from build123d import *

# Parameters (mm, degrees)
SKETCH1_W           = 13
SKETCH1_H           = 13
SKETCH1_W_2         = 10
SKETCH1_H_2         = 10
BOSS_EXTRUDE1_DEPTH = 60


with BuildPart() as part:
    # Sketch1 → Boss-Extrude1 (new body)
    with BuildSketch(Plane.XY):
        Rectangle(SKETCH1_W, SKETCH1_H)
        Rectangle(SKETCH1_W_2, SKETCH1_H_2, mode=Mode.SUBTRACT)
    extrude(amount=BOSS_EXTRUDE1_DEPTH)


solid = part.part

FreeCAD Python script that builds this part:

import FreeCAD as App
import Part
import Sketcher
from FreeCAD import Vector
Q = App.Units.Quantity


def add_polygon(sketch, points):
    """Adds a closed chain of lines whose ends are joined by coincident constraints."""
    first, n = sketch.GeometryCount, len(points)
    for a, b in zip(points, points[1:] + points[:1]):
        sketch.addGeometry(Part.LineSegment(App.Vector(*a, 0), App.Vector(*b, 0)), False)
    for i in range(n):
        sketch.addConstraint(Sketcher.Constraint("Coincident", first + i, 2, first + (i + 1) % n, 1))

doc = App.newDocument("Part")
params = doc.addObject("Spreadsheet::Sheet", "Params")
for row, (alias, value) in enumerate([
    ("sketch1_width", "13 mm"),
    ("sketch1_width2", "10 mm"),
    ("pad1_length", "60 mm"),
], start=1):
    params.set(f"A{row}", alias)
    params.set(f"B{row}", "=" + value)
    params.setAlias(f"B{row}", alias)

body = doc.addObject("PartDesign::Body", "Body")

# Sketch on XY plane
sketch1 = body.newObject("Sketcher::SketchObject", "Sketch")
sketch1.AttachmentSupport = (doc.getObject("XY_Plane"), [""])
sketch1.MapMode = "FlatFace"
add_polygon(sketch1, [(-6, 6), (-6, -6), (6, -6), (6, 6)])  # lines 0-3
add_polygon(sketch1, [(5, -5), (-5, -5), (-5, 5), (5, 5)])  # lines 4-7
sketch1.addConstraint([
    Sketcher.Constraint("Vertical", 0),
    Sketcher.Constraint("Horizontal", 1),
    Sketcher.Constraint("Vertical", 2),
    Sketcher.Constraint("Horizontal", 3),
    Sketcher.Constraint("Horizontal", 4),
    Sketcher.Constraint("Vertical", 5),
    Sketcher.Constraint("Horizontal", 6),
    Sketcher.Constraint("Vertical", 7),
    Sketcher.Constraint("Symmetric", 0, 2, 2, 2, -1, 1),
    Sketcher.Constraint("Symmetric", 4, 2, 6, 2, -1, 1),
    Sketcher.Constraint("Equal", 3, 0),
    Sketcher.Constraint("Equal", 6, 5),
    Sketcher.Constraint("DistanceX", 1, 1, 1, 2, Q("13 mm")),
    Sketcher.Constraint("DistanceX", 4, 2, 4, 1, Q("10 mm")),
])
sketch1.setExpression("Constraints[20]", "Params.sketch1_width")
sketch1.setExpression("Constraints[21]", "Params.sketch1_width2")
pad1 = body.newObject("PartDesign::Pad", "Pad")
pad1.Profile = sketch1
pad1.setExpression("Length", "Params.pad1_length")

doc.recompute()
